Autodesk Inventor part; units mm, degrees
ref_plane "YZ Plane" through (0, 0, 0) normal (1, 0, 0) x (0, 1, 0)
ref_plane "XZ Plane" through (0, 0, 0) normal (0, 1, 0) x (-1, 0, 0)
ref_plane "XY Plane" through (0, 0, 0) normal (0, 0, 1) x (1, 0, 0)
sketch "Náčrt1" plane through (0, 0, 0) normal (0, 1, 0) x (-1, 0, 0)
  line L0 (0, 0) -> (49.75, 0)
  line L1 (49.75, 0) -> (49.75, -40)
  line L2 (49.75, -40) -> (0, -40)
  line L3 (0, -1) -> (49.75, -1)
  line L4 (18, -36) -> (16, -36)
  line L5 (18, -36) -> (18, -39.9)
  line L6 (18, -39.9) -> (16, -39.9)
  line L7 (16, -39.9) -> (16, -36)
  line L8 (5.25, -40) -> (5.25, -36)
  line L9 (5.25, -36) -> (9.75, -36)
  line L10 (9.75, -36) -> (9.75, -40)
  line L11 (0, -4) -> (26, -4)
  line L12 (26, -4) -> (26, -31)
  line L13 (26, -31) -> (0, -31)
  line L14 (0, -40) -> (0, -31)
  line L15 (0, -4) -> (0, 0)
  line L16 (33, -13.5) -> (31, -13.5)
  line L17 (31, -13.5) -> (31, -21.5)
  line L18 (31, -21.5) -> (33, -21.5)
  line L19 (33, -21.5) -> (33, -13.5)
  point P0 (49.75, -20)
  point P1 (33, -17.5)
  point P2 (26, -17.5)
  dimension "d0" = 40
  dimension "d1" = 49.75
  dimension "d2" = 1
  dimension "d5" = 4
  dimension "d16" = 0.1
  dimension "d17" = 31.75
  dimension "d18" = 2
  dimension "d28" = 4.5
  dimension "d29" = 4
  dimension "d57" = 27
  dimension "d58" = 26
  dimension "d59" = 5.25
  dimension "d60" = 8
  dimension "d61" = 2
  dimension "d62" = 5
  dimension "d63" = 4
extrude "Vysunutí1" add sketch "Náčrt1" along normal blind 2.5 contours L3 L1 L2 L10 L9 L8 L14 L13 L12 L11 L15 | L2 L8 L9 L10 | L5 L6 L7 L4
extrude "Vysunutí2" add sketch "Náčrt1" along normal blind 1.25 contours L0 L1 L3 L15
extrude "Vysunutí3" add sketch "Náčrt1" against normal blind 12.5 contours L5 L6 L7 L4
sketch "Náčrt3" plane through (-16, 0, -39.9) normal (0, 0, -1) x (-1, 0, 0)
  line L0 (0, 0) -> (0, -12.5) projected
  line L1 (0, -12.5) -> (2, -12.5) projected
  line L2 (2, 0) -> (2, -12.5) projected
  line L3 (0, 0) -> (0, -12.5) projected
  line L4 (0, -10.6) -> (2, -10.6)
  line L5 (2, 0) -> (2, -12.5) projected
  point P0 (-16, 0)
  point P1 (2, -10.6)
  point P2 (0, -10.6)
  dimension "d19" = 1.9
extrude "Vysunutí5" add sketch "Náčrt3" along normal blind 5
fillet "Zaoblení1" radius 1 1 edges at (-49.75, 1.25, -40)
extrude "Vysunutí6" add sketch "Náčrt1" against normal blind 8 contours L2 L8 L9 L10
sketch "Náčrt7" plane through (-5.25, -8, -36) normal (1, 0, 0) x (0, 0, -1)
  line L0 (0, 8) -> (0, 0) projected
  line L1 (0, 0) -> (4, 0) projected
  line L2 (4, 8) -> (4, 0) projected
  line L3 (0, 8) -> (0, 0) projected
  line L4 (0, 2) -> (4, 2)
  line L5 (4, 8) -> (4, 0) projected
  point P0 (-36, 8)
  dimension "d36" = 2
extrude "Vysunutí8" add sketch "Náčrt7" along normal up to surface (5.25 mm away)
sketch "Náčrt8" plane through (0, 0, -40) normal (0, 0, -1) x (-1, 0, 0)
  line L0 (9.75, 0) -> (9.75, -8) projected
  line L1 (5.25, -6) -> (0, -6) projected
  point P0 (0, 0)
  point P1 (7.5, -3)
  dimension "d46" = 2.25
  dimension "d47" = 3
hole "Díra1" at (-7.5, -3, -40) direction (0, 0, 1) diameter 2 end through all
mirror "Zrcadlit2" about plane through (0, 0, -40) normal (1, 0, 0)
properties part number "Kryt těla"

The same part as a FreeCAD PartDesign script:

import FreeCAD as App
import Part
import Sketcher


def edges_at(feature, points):
    """Names of the edges that pass closest to the given points."""
    edges = feature.Shape.Edges
    near = lambda p: min(range(len(edges)), key=lambda i: edges[i].distToShape(Part.Vertex(*p))[0])
    return sorted({f"Edge{near(p) + 1}" for p in points})


def add_polygon(sketch, points):
    """Adds a closed chain of lines whose ends are joined by coincident constraints."""
    first, n = sketch.GeometryCount, len(points)
    for a, b in zip(points, points[1:] + points[:1]):
        sketch.addGeometry(Part.LineSegment(App.Vector(*a, 0), App.Vector(*b, 0)), False)
    for i in range(n):
        sketch.addConstraint(Sketcher.Constraint("Coincident", first + i, 2, first + (i + 1) % n, 1))

doc = App.newDocument("Part")
body = doc.addObject("PartDesign::Body", "Body")

# Sketch on XZ plane
sketch1 = body.newObject("Sketcher::SketchObject", "Sketch")
sketch1.AttachmentSupport = (doc.getObject("XZ_Plane"), [""])
sketch1.MapMode = "FlatFace"
add_polygon(sketch1, [(-49.8, -1), (0, -1), (0, -4), (-26, -4), (-26, -31), (0, -31), (0, -40), (-49.8, -40)])  # lines 0-7
add_polygon(sketch1, [(-31, -13.5), (-33, -13.5), (-33, -21.5), (-31, -21.5)])  # lines 8-11
sketch1.addConstraint([
    Sketcher.Constraint("Horizontal", 0),
    Sketcher.Constraint("Vertical", 1),
    Sketcher.Constraint("Horizontal", 2),
    Sketcher.Constraint("Vertical", 3),
    Sketcher.Constraint("Horizontal", 4),
    Sketcher.Constraint("Vertical", 5),
    Sketcher.Constraint("Horizontal", 6),
    Sketcher.Constraint("Vertical", 7),
    Sketcher.Constraint("Horizontal", 8),
    Sketcher.Constraint("Vertical", 9),
    Sketcher.Constraint("Horizontal", 10),
    Sketcher.Constraint("Vertical", 11),
    Sketcher.Constraint("PointOnObject", 0, 2, -2),
    Sketcher.Constraint("PointOnObject", 4, 2, -2),
    Sketcher.Constraint("DistanceX", 2, 2, 2, 1, 26.0),
    Sketcher.Constraint("DistanceX", 8, 2, 8, 1, 2.0),
    Sketcher.Constraint("DistanceY", 3, 2, 3, 1, 27.0),
    Sketcher.Constraint("DistanceY", 9, 2, 9, 1, 8.0),
    Sketcher.Constraint("DistanceY", 0, 2, -1, 1, 1.0),
    Sketcher.Constraint("DistanceY", 1, 2, -1, 1, 4.0),
    Sketcher.Constraint("DistanceY", 5, 2, -1, 1, 40.0),
    Sketcher.Constraint("DistanceX", 10, 2, 3, 2, 5.0),
    Sketcher.Constraint("DistanceX", 0, 1, 0, 2, 49.75),
    Sketcher.Constraint("DistanceY", 8, 2, -1, 1, 13.5),
])
pad1 = body.newObject("PartDesign::Pad", "Pad")
pad1.Profile = sketch1
pad1.Length = 2.5
pad1.Reversed = True

# Sketch on XZ plane
sketch2 = body.newObject("Sketcher::SketchObject", "Sketch001")
sketch2.AttachmentSupport = (doc.getObject("XZ_Plane"), [""])
sketch2.MapMode = "FlatFace"
add_polygon(sketch2, [(-49.8, 0), (0, 0), (0, -1), (-49.8, -1)])  # lines 0-3
sketch2.addConstraint([
    Sketcher.Constraint("Horizontal", 0),
    Sketcher.Constraint("Vertical", 1),
    Sketcher.Constraint("Horizontal", 2),
    Sketcher.Constraint("Vertical", 3),
    Sketcher.Constraint("Coincident", 0, 2, -1, 1),
    Sketcher.Constraint("DistanceY", 1, 2, 1, 1, 1.0),
    Sketcher.Constraint("DistanceX", 0, 1, 0, 2, 49.75),
])
pad2 = body.newObject("PartDesign::Pad", "Pad001")
pad2.Profile = sketch2
pad2.Length = 1.25
pad2.Reversed = True

# Sketch on XZ plane
sketch3 = body.newObject("Sketcher::SketchObject", "Sketch002")
sketch3.AttachmentSupport = (doc.getObject("XZ_Plane"), [""])
sketch3.MapMode = "FlatFace"
add_polygon(sketch3, [(-18, -39.9), (-18, -36), (-16, -36), (-16, -39.9)])  # lines 0-3
sketch3.addConstraint([
    Sketcher.Constraint("Vertical", 0),
    Sketcher.Constraint("Horizontal", 1),
    Sketcher.Constraint("Vertical", 2),
    Sketcher.Constraint("Horizontal", 3),
    Sketcher.Constraint("DistanceX", 1, 1, 1, 2, 2.0),
    Sketcher.Constraint("DistanceY", 0, 1, 0, 2, 3.9),
    Sketcher.Constraint("DistanceX", 0, 2, -1, 1, 18.0),
    Sketcher.Constraint("DistanceY", 0, 2, -1, 1, 36.0),
])
pad3 = body.newObject("PartDesign::Pad", "Pad002")
pad3.Profile = sketch3
pad3.Length = 12.5

# Sketch on XY plane
sketch4 = body.newObject("Sketcher::SketchObject", "Sketch003")
sketch4.AttachmentSupport = (doc.getObject("XY_Plane"), [""])
sketch4.MapMode = "FlatFace"
sketch4.AttachmentOffset = App.Placement(App.Vector(0, 0, -39.9), App.Rotation())
add_polygon(sketch4, [(-18, -10.6), (-16, -10.6), (-16, -12.5), (-18, -12.5)])  # lines 0-3
sketch4.addConstraint([
    Sketcher.Constraint("Horizontal", 0),
    Sketcher.Constraint("Vertical", 1),
    Sketcher.Constraint("Horizontal", 2),
    Sketcher.Constraint("Vertical", 3),
    Sketcher.Constraint("DistanceY", 1, 2, 1, 1, 1.9),
    Sketcher.Constraint("DistanceX", 0, 1, 0, 2, 2.0),
    Sketcher.Constraint("DistanceX", 0, 2, -1, 1, 16.0),
    Sketcher.Constraint("DistanceY", 0, 2, -1, 1, 10.6),
])
pad4 = body.newObject("PartDesign::Pad", "Pad003")
pad4.Profile = sketch4
pad4.Length = 5
pad4.Reversed = True
doc.recompute()

fillet = body.newObject("PartDesign::Fillet", "Fillet")
fillet.Base = (pad4, edges_at(pad4, [(-49.75, 1.25, -40)]))
fillet.Radius = 1

# Sketch on XZ plane
sketch5 = body.newObject("Sketcher::SketchObject", "Sketch004")
sketch5.AttachmentSupport = (doc.getObject("XZ_Plane"), [""])
sketch5.MapMode = "FlatFace"
add_polygon(sketch5, [(-5.2, -40), (-9.8, -40), (-9.8, -36), (-5.2, -36)])  # lines 0-3
sketch5.addConstraint([
    Sketcher.Constraint("Horizontal", 0),
    Sketcher.Constraint("Vertical", 1),
    Sketcher.Constraint("Horizontal", 2),
    Sketcher.Constraint("Vertical", 3),
    Sketcher.Constraint("DistanceY", 1, 1, 1, 2, 4.0),
    Sketcher.Constraint("DistanceX", 0, 2, 0, 1, 4.5),
    Sketcher.Constraint("DistanceY", 0, 2, -1, 1, 40.0),
    Sketcher.Constraint("DistanceX", 2, 2, -1, 1, 5.25),
])
pad5 = body.newObject("PartDesign::Pad", "Pad004")
pad5.Profile = sketch5
pad5.Length = 8

# Sketch on YZ plane
sketch6 = body.newObject("Sketcher::SketchObject", "Sketch005")
sketch6.AttachmentSupport = (doc.getObject("YZ_Plane"), [""])
sketch6.MapMode = "FlatFace"
sketch6.AttachmentOffset = App.Placement(App.Vector(0, 0, -5.25), App.Rotation())
add_polygon(sketch6, [(-6, -40), (-6, -36), (-8, -36), (-8, -40)])  # lines 0-3
sketch6.addConstraint([
    Sketcher.Constraint("Vertical", 0),
    Sketcher.Constraint("Horizontal", 1),
    Sketcher.Constraint("Vertical", 2),
    Sketcher.Constraint("Horizontal", 3),
    Sketcher.Constraint("DistanceX", 1, 2, 1, 1, 2.0),
    Sketcher.Constraint("DistanceY", 0, 1, 0, 2, 4.0),
    Sketcher.Constraint("DistanceX", 0, 2, -1, 1, 6.0),
    Sketcher.Constraint("DistanceY", 0, 2, -1, 1, 36.0),
])
pad6 = body.newObject("PartDesign::Pad", "Pad005")
pad6.Profile = sketch6
pad6.Length = 5.25

# Sketch on XY plane
sketch7 = body.newObject("Sketcher::SketchObject", "Sketch006")
sketch7.AttachmentSupport = (doc.getObject("XY_Plane"), [""])
sketch7.MapMode = "FlatFace"
sketch7.AttachmentOffset = App.Placement(App.Vector(0, 0, -40), App.Rotation())
sketch7.addGeometry(Part.Circle(App.Vector(-7.5, -3, 0), App.Vector(0, 0, 1), 1), False)
sketch7.addConstraint([
    Sketcher.Constraint("Diameter", 0, 2.0),
    Sketcher.Constraint("DistanceY", 0, 3, -1, 1, 3.0),
    Sketcher.Constraint("DistanceX", 0, 3, -1, 1, 7.5),
])
doc.recompute()
hole = body.newObject("PartDesign::Hole", "Hole")
hole.Profile = sketch7
hole.ThreadType = "None"
hole.Diameter = 2
hole.DepthType = "ThroughAll"
hole.Reversed = True
doc.recompute()

mirrored = body.newObject("PartDesign::Mirrored", "Mirrored")
mirrored.TransformMode = "Transform body"
mirrored.MirrorPlane = (doc.getObject("YZ_Plane"), [""])
body.Tip = mirrored

doc.recompute()
